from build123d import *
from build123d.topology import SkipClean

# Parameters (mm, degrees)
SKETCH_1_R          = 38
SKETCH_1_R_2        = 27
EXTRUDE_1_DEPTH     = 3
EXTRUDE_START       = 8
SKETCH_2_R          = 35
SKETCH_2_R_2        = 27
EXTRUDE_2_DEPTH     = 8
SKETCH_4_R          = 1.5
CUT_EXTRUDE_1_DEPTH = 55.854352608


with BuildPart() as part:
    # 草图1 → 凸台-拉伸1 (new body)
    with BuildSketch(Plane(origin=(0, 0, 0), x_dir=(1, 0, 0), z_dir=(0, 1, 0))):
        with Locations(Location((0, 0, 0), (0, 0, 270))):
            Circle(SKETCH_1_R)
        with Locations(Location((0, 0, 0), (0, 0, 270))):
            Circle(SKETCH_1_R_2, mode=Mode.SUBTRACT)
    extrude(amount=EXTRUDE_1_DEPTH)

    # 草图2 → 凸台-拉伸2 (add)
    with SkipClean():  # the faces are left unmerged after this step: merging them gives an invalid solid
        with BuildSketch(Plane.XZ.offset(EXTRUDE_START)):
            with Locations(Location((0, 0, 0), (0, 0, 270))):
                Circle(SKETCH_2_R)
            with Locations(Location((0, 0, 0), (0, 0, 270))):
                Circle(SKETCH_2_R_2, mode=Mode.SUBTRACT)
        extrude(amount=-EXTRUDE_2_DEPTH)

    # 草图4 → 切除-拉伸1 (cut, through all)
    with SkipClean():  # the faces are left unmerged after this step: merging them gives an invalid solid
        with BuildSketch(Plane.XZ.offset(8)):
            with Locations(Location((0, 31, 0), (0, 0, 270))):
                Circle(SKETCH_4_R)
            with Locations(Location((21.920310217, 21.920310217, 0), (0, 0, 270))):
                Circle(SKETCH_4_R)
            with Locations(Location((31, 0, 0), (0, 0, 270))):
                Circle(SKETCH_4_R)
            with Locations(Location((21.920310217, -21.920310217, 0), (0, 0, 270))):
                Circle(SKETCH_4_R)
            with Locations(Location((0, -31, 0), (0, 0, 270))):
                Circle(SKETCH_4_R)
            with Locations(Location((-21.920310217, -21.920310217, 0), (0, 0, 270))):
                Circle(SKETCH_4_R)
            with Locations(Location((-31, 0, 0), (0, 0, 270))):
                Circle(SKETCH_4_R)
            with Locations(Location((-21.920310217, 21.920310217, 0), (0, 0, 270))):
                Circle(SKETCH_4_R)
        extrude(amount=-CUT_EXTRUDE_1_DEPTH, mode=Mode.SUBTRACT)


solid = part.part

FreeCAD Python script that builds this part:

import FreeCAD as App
import Part
import Sketcher

V = App.Vector
Q = App.Units.Quantity

doc = App.newDocument("Part")
body = doc.addObject("PartDesign::Body", "Body")

sketch1 = body.newObject("Sketcher::SketchObject", "Sketch")
sketch1.AttachmentSupport = (doc.getObject("XZ_Plane"), [""])
sketch1.MapMode = "FlatFace"
sketch1.addGeometry(Part.Circle(V(0, 0, 0), V(0, 0, 1), 38), False)
sketch1.addGeometry(Part.Circle(V(0, 0, 0), V(0, 0, 1), 27), False)
sketch1.addConstraint(Sketcher.Constraint("Coincident", 0, 3, -1, 1))
sketch1.addConstraint(Sketcher.Constraint("Coincident", 1, 3, -1, 1))
sketch1.addConstraint(Sketcher.Constraint("Diameter", 0, Q("76 mm")))
sketch1.addConstraint(Sketcher.Constraint("Diameter", 1, Q("54 mm")))
pad1 = body.newObject("PartDesign::Pad", "Pad")
pad1.Profile = sketch1
pad1.Length = 3
pad1.Reversed = True

sketch2 = body.newObject("Sketcher::SketchObject", "Sketch001")
sketch2.AttachmentSupport = (doc.getObject("XZ_Plane"), [""])
sketch2.MapMode = "FlatFace"
sketch2.AttachmentOffset = App.Placement(V(0, 0, 8), App.Rotation())
sketch2.addGeometry(Part.Circle(V(0, 0, 0), V(0, 0, 1), 35), False)
sketch2.addGeometry(Part.Circle(V(0, 0, 0), V(0, 0, 1), 27), False)
sketch2.addConstraint(Sketcher.Constraint("Coincident", 0, 3, -1, 1))
sketch2.addConstraint(Sketcher.Constraint("Coincident", 1, 3, -1, 1))
sketch2.addConstraint(Sketcher.Constraint("Diameter", 0, Q("70 mm")))
sketch2.addConstraint(Sketcher.Constraint("Diameter", 1, Q("54 mm")))
pad2 = body.newObject("PartDesign::Pad", "Pad001")
pad2.Profile = sketch2
pad2.Length = 8
pad2.Reversed = True

sketch3 = body.newObject("Sketcher::SketchObject", "Sketch002")
sketch3.AttachmentSupport = (doc.getObject("XZ_Plane"), [""])
sketch3.MapMode = "FlatFace"
sketch3.AttachmentOffset = App.Placement(V(0, 0, 8), App.Rotation())
sketch3.addGeometry(Part.Circle(V(0, 31, 0), V(0, 0, 1), 1.5), False)
sketch3.addGeometry(Part.Circle(V(21.9, 21.9, 0), V(0, 0, 1), 1.5), False)
sketch3.addGeometry(Part.Circle(V(31, 0, 0), V(0, 0, 1), 1.5), False)
sketch3.addGeometry(Part.Circle(V(21.9, -21.9, 0), V(0, 0, 1), 1.5), False)
sketch3.addGeometry(Part.Circle(V(0, -31, 0), V(0, 0, 1), 1.5), False)
sketch3.addGeometry(Part.Circle(V(-21.9, -21.9, 0), V(0, 0, 1), 1.5), False)
sketch3.addGeometry(Part.Circle(V(-31, 0, 0), V(0, 0, 1), 1.5), False)
sketch3.addGeometry(Part.Circle(V(-21.9, 21.9, 0), V(0, 0, 1), 1.5), False)
sketch3.addConstraint(Sketcher.Constraint("Equal", 0, 1))
sketch3.addConstraint(Sketcher.Constraint("Equal", 1, 2))
sketch3.addConstraint(Sketcher.Constraint("Equal", 2, 3))
sketch3.addConstraint(Sketcher.Constraint("Equal", 3, 4))
sketch3.addConstraint(Sketcher.Constraint("Equal", 4, 5))
sketch3.addConstraint(Sketcher.Constraint("Equal", 5, 6))
sketch3.addConstraint(Sketcher.Constraint("Equal", 6, 7))
sketch3.addConstraint(Sketcher.Constraint("Symmetric", 0, 3, 4, 3, -1, 1))
sketch3.addConstraint(Sketcher.Constraint("Symmetric", 1, 3, 5, 3, -1, 1))
sketch3.addConstraint(Sketcher.Constraint("Symmetric", 2, 3, 6, 3, -1, 1))
sketch3.addConstraint(Sketcher.Constraint("Symmetric", 3, 3, 7, 3, -1, 1))
sketch3.addConstraint(Sketcher.Constraint("Symmetric", 3, 3, 5, 3, -2))
sketch3.addConstraint(Sketcher.Constraint("PointOnObject", 0, 3, -2))
sketch3.addConstraint(Sketcher.Constraint("PointOnObject", 2, 3, -1))
sketch3.addConstraint(Sketcher.Constraint("Diameter", 0, Q("3 mm")))
sketch3.addConstraint(Sketcher.Constraint("DistanceY", -1, 1, 0, 3, Q("31 mm")))
sketch3.addConstraint(Sketcher.Constraint("DistanceX", -1, 1, 2, 3, Q("31 mm")))
sketch3.addConstraint(Sketcher.Constraint("DistanceX", -1, 1, 1, 3, Q("21.92031 mm")))
sketch3.addConstraint(Sketcher.Constraint("DistanceY", -1, 1, 1, 3, Q("21.92031 mm")))
pocket1 = body.newObject("PartDesign::Pocket", "Pocket")
pocket1.Profile = sketch3
pocket1.Type = "ThroughAll"

doc.recompute()
